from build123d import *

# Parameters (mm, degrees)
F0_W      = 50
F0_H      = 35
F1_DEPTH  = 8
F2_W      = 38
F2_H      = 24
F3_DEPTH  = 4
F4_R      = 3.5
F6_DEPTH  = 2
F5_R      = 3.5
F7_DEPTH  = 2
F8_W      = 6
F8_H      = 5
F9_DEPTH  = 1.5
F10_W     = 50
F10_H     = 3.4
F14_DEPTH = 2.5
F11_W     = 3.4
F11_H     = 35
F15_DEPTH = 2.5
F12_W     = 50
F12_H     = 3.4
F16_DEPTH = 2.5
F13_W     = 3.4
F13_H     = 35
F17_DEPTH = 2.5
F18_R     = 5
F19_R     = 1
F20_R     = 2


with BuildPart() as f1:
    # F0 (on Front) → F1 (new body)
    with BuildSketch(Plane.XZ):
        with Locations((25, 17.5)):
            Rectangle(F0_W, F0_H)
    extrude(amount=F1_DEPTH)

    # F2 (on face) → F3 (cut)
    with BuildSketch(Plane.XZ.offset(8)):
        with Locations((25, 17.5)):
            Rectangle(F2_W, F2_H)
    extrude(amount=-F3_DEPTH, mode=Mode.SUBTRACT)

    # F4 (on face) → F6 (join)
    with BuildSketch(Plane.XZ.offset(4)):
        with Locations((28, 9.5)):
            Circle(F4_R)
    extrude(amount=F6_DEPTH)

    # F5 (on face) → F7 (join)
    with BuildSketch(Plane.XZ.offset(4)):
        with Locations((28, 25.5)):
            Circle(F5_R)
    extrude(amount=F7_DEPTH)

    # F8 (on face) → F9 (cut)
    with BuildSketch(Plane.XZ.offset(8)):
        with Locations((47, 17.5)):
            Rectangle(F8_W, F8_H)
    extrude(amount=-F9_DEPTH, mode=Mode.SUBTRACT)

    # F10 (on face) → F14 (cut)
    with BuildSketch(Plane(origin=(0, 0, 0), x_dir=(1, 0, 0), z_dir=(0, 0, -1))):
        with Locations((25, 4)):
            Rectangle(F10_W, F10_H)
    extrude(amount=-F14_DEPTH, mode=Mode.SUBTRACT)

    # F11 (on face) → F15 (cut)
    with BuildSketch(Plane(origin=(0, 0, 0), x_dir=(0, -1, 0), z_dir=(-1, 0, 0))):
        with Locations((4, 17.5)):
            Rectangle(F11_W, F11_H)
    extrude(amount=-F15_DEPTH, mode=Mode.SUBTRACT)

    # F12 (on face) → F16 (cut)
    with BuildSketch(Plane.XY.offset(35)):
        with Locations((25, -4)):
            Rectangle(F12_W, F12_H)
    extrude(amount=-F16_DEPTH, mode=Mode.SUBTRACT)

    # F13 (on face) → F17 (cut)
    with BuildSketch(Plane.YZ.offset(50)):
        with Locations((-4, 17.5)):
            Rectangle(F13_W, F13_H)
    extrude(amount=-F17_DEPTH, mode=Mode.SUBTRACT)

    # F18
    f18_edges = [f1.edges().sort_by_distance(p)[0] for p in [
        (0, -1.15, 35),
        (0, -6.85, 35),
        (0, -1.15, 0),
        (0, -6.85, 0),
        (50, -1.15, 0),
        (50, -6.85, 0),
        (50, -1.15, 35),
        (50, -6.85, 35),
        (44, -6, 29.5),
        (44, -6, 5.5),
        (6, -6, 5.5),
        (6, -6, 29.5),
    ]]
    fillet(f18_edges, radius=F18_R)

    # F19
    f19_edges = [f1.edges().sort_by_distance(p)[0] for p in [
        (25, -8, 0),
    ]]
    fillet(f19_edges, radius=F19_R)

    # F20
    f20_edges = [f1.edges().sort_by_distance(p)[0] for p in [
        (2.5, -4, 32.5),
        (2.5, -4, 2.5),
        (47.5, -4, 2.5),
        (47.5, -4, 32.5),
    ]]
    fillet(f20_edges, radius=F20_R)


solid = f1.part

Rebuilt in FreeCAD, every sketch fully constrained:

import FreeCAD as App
import Part
import Sketcher

V = App.Vector


def edges_at(feature, points):
    """Names of the edges that pass closest to the given points."""
    edges = feature.Shape.Edges
    near = lambda p: min(range(len(edges)), key=lambda i: edges[i].distToShape(Part.Vertex(*p))[0])
    return sorted({f"Edge{near(p) + 1}" for p in points})


def add_polygon(sketch, points):
    """Adds a closed chain of lines whose ends are joined by coincident constraints."""
    first, n = sketch.GeometryCount, len(points)
    for a, b in zip(points, points[1:] + points[:1]):
        sketch.addGeometry(Part.LineSegment(App.Vector(*a, 0), App.Vector(*b, 0)), False)
    for i in range(n):
        sketch.addConstraint(Sketcher.Constraint("Coincident", first + i, 2, first + (i + 1) % n, 1))

doc = App.newDocument("Part")
body = doc.addObject("PartDesign::Body", "Body")

# Sketch on XZ plane
sketch1 = body.newObject("Sketcher::SketchObject", "Sketch")
sketch1.AttachmentSupport = (doc.getObject("XZ_Plane"), [""])
sketch1.MapMode = "FlatFace"
add_polygon(sketch1, [(0, 35), (0, 0), (50, 0), (50, 35)])  # lines 0-3
sketch1.addConstraint([
    Sketcher.Constraint("Vertical", 0),
    Sketcher.Constraint("Horizontal", 1),
    Sketcher.Constraint("Vertical", 2),
    Sketcher.Constraint("Horizontal", 3),
    Sketcher.Constraint("Coincident", 0, 2, -1, 1),
    Sketcher.Constraint("DistanceX", 1, 1, 1, 2, 50.0),
    Sketcher.Constraint("DistanceY", 0, 2, 0, 1, 35.0),
])
pad1 = body.newObject("PartDesign::Pad", "Pad")
pad1.Profile = sketch1
pad1.Length = 8

# Sketch on XZ plane
sketch2 = body.newObject("Sketcher::SketchObject", "Sketch001")
sketch2.AttachmentSupport = (doc.getObject("XZ_Plane"), [""])
sketch2.MapMode = "FlatFace"
sketch2.AttachmentOffset = App.Placement(V(0, 0, 8), App.Rotation())
add_polygon(sketch2, [(6, 30), (6, 6), (44, 6), (44, 30)])  # lines 0-3
sketch2.addConstraint([
    Sketcher.Constraint("Vertical", 0),
    Sketcher.Constraint("Horizontal", 1),
    Sketcher.Constraint("Vertical", 2),
    Sketcher.Constraint("Horizontal", 3),
    Sketcher.Constraint("DistanceX", 1, 1, 1, 2, 38.0),
    Sketcher.Constraint("DistanceY", 0, 2, 0, 1, 24.0),
    Sketcher.Constraint("DistanceX", -1, 1, 0, 2, 6.0),
    Sketcher.Constraint("DistanceY", -1, 1, 0, 2, 5.5),
])
pocket1 = body.newObject("PartDesign::Pocket", "Pocket")
pocket1.Profile = sketch2
pocket1.Length = 4

# Sketch on XZ plane
sketch3 = body.newObject("Sketcher::SketchObject", "Sketch002")
sketch3.AttachmentSupport = (doc.getObject("XZ_Plane"), [""])
sketch3.MapMode = "FlatFace"
sketch3.AttachmentOffset = App.Placement(V(0, 0, 4), App.Rotation())
sketch3.addGeometry(Part.Circle(V(28, 9.5, 0), V(0, 0, 1), 3.5), False)
sketch3.addConstraint([
    Sketcher.Constraint("Diameter", 0, 7.0),
    Sketcher.Constraint("DistanceX", -1, 1, 0, 3, 28.0),
    Sketcher.Constraint("DistanceY", -1, 1, 0, 3, 9.5),
])
pad2 = body.newObject("PartDesign::Pad", "Pad001")
pad2.Profile = sketch3
pad2.Length = 2

# Sketch on XZ plane
sketch4 = body.newObject("Sketcher::SketchObject", "Sketch003")
sketch4.AttachmentSupport = (doc.getObject("XZ_Plane"), [""])
sketch4.MapMode = "FlatFace"
sketch4.AttachmentOffset = App.Placement(V(0, 0, 4), App.Rotation())
sketch4.addGeometry(Part.Circle(V(28, 25.5, 0), V(0, 0, 1), 3.5), False)
sketch4.addConstraint([
    Sketcher.Constraint("Diameter", 0, 7.0),
    Sketcher.Constraint("DistanceX", -1, 1, 0, 3, 28.0),
    Sketcher.Constraint("DistanceY", -1, 1, 0, 3, 25.5),
])
pad3 = body.newObject("PartDesign::Pad", "Pad002")
pad3.Profile = sketch4
pad3.Length = 2

# Sketch on XZ plane
sketch5 = body.newObject("Sketcher::SketchObject", "Sketch004")
sketch5.AttachmentSupport = (doc.getObject("XZ_Plane"), [""])
sketch5.MapMode = "FlatFace"
sketch5.AttachmentOffset = App.Placement(V(0, 0, 8), App.Rotation())
add_polygon(sketch5, [(44, 20), (44, 15), (50, 15), (50, 20)])  # lines 0-3
sketch5.addConstraint([
    Sketcher.Constraint("Vertical", 0),
    Sketcher.Constraint("Horizontal", 1),
    Sketcher.Constraint("Vertical", 2),
    Sketcher.Constraint("Horizontal", 3),
    Sketcher.Constraint("DistanceX", 1, 1, 1, 2, 6.0),
    Sketcher.Constraint("DistanceY", 0, 2, 0, 1, 5.0),
    Sketcher.Constraint("DistanceX", -1, 1, 0, 2, 44.0),
    Sketcher.Constraint("DistanceY", -1, 1, 0, 2, 15.0),
])
pocket2 = body.newObject("PartDesign::Pocket", "Pocket001")
pocket2.Profile = sketch5
pocket2.Length = 1.5

# Sketch on XY plane
sketch6 = body.newObject("Sketcher::SketchObject", "Sketch005")
sketch6.AttachmentSupport = (doc.getObject("XY_Plane"), [""])
sketch6.MapMode = "FlatFace"
add_polygon(sketch6, [(0, -5.7), (0, -2.3), (50, -2.3), (50, -5.7)])  # lines 0-3
sketch6.addConstraint([
    Sketcher.Constraint("Vertical", 0),
    Sketcher.Constraint("Horizontal", 1),
    Sketcher.Constraint("Vertical", 2),
    Sketcher.Constraint("Horizontal", 3),
    Sketcher.Constraint("PointOnObject", 0, 2, -2),
    Sketcher.Constraint("DistanceX", 1, 1, 1, 2, 50.0),
    Sketcher.Constraint("DistanceY", 0, 1, 0, 2, 3.4),
    Sketcher.Constraint("DistanceY", 0, 2, -1, 1, 2.3),
])
pocket3 = body.newObject("PartDesign::Pocket", "Pocket002")
pocket3.Profile = sketch6
pocket3.Length = 2.5
pocket3.Reversed = True

# Sketch on YZ plane
sketch7 = body.newObject("Sketcher::SketchObject", "Sketch006")
sketch7.AttachmentSupport = (doc.getObject("YZ_Plane"), [""])
sketch7.MapMode = "FlatFace"
add_polygon(sketch7, [(-2.3, 35), (-2.3, 0), (-5.7, 0), (-5.7, 35)])  # lines 0-3
sketch7.addConstraint([
    Sketcher.Constraint("Vertical", 0),
    Sketcher.Constraint("Horizontal", 1),
    Sketcher.Constraint("Vertical", 2),
    Sketcher.Constraint("Horizontal", 3),
    Sketcher.Constraint("PointOnObject", 0, 2, -1),
    Sketcher.Constraint("DistanceY", 0, 2, 0, 1, 35.0),
    Sketcher.Constraint("DistanceX", 1, 2, 1, 1, 3.4),
    Sketcher.Constraint("DistanceX", 0, 2, -1, 1, 2.3),
])
pocket4 = body.newObject("PartDesign::Pocket", "Pocket003")
pocket4.Profile = sketch7
pocket4.Length = 2.5
pocket4.Reversed = True

# Sketch on XY plane
sketch8 = body.newObject("Sketcher::SketchObject", "Sketch007")
sketch8.AttachmentSupport = (doc.getObject("XY_Plane"), [""])
sketch8.MapMode = "FlatFace"
sketch8.AttachmentOffset = App.Placement(V(0, 0, 35), App.Rotation())
add_polygon(sketch8, [(0, -2.3), (0, -5.7), (50, -5.7), (50, -2.3)])  # lines 0-3
sketch8.addConstraint([
    Sketcher.Constraint("Vertical", 0),
    Sketcher.Constraint("Horizontal", 1),
    Sketcher.Constraint("Vertical", 2),
    Sketcher.Constraint("Horizontal", 3),
    Sketcher.Constraint("PointOnObject", 0, 2, -2),
    Sketcher.Constraint("DistanceX", 1, 1, 1, 2, 50.0),
    Sketcher.Constraint("DistanceY", 0, 2, 0, 1, 3.4),
    Sketcher.Constraint("DistanceY", 0, 2, -1, 1, 5.7),
])
pocket5 = body.newObject("PartDesign::Pocket", "Pocket004")
pocket5.Profile = sketch8
pocket5.Length = 2.5

# Sketch on YZ plane
sketch9 = body.newObject("Sketcher::SketchObject", "Sketch008")
sketch9.AttachmentSupport = (doc.getObject("YZ_Plane"), [""])
sketch9.MapMode = "FlatFace"
sketch9.AttachmentOffset = App.Placement(V(0, 0, 50), App.Rotation())
add_polygon(sketch9, [(-5.7, 35), (-5.7, 0), (-2.3, 0), (-2.3, 35)])  # lines 0-3
sketch9.addConstraint([
    Sketcher.Constraint("Vertical", 0),
    Sketcher.Constraint("Horizontal", 1),
    Sketcher.Constraint("Vertical", 2),
    Sketcher.Constraint("Horizontal", 3),
    Sketcher.Constraint("PointOnObject", 0, 2, -1),
    Sketcher.Constraint("DistanceY", 0, 2, 0, 1, 35.0),
    Sketcher.Constraint("DistanceX", 1, 1, 1, 2, 3.4),
    Sketcher.Constraint("DistanceX", 0, 2, -1, 1, 5.7),
])
pocket6 = body.newObject("PartDesign::Pocket", "Pocket005")
pocket6.Profile = sketch9
pocket6.Length = 2.5
doc.recompute()

fillet = body.newObject("PartDesign::Fillet", "Fillet")
fillet.Base = (pocket6, edges_at(pocket6, [
    (0, -1.15, 35),
    (0, -6.85, 35),
    (0, -1.15, 0),
    (0, -6.85, 0),
    (50, -1.15, 0),
    (50, -6.85, 0),
    (50, -1.15, 35),
    (50, -6.85, 35),
    (44, -6, 29.5),
    (44, -6, 5.5),
    (6, -6, 5.5),
    (6, -6, 29.5),
]))
fillet.Radius = 5
doc.recompute()

fillet2 = body.newObject("PartDesign::Fillet", "Fillet001")
fillet2.Base = (fillet, edges_at(fillet, [(25, -8, 0)]))
fillet2.Radius = 1
doc.recompute()

fillet3 = body.newObject("PartDesign::Fillet", "Fillet002")
fillet3.Base = (fillet2, edges_at(fillet2, [
    (2.5, -4, 32.5),
    (2.5, -4, 2.5),
    (47.5, -4, 2.5),
    (47.5, -4, 32.5),
]))
fillet3.Radius = 2

doc.recompute()
